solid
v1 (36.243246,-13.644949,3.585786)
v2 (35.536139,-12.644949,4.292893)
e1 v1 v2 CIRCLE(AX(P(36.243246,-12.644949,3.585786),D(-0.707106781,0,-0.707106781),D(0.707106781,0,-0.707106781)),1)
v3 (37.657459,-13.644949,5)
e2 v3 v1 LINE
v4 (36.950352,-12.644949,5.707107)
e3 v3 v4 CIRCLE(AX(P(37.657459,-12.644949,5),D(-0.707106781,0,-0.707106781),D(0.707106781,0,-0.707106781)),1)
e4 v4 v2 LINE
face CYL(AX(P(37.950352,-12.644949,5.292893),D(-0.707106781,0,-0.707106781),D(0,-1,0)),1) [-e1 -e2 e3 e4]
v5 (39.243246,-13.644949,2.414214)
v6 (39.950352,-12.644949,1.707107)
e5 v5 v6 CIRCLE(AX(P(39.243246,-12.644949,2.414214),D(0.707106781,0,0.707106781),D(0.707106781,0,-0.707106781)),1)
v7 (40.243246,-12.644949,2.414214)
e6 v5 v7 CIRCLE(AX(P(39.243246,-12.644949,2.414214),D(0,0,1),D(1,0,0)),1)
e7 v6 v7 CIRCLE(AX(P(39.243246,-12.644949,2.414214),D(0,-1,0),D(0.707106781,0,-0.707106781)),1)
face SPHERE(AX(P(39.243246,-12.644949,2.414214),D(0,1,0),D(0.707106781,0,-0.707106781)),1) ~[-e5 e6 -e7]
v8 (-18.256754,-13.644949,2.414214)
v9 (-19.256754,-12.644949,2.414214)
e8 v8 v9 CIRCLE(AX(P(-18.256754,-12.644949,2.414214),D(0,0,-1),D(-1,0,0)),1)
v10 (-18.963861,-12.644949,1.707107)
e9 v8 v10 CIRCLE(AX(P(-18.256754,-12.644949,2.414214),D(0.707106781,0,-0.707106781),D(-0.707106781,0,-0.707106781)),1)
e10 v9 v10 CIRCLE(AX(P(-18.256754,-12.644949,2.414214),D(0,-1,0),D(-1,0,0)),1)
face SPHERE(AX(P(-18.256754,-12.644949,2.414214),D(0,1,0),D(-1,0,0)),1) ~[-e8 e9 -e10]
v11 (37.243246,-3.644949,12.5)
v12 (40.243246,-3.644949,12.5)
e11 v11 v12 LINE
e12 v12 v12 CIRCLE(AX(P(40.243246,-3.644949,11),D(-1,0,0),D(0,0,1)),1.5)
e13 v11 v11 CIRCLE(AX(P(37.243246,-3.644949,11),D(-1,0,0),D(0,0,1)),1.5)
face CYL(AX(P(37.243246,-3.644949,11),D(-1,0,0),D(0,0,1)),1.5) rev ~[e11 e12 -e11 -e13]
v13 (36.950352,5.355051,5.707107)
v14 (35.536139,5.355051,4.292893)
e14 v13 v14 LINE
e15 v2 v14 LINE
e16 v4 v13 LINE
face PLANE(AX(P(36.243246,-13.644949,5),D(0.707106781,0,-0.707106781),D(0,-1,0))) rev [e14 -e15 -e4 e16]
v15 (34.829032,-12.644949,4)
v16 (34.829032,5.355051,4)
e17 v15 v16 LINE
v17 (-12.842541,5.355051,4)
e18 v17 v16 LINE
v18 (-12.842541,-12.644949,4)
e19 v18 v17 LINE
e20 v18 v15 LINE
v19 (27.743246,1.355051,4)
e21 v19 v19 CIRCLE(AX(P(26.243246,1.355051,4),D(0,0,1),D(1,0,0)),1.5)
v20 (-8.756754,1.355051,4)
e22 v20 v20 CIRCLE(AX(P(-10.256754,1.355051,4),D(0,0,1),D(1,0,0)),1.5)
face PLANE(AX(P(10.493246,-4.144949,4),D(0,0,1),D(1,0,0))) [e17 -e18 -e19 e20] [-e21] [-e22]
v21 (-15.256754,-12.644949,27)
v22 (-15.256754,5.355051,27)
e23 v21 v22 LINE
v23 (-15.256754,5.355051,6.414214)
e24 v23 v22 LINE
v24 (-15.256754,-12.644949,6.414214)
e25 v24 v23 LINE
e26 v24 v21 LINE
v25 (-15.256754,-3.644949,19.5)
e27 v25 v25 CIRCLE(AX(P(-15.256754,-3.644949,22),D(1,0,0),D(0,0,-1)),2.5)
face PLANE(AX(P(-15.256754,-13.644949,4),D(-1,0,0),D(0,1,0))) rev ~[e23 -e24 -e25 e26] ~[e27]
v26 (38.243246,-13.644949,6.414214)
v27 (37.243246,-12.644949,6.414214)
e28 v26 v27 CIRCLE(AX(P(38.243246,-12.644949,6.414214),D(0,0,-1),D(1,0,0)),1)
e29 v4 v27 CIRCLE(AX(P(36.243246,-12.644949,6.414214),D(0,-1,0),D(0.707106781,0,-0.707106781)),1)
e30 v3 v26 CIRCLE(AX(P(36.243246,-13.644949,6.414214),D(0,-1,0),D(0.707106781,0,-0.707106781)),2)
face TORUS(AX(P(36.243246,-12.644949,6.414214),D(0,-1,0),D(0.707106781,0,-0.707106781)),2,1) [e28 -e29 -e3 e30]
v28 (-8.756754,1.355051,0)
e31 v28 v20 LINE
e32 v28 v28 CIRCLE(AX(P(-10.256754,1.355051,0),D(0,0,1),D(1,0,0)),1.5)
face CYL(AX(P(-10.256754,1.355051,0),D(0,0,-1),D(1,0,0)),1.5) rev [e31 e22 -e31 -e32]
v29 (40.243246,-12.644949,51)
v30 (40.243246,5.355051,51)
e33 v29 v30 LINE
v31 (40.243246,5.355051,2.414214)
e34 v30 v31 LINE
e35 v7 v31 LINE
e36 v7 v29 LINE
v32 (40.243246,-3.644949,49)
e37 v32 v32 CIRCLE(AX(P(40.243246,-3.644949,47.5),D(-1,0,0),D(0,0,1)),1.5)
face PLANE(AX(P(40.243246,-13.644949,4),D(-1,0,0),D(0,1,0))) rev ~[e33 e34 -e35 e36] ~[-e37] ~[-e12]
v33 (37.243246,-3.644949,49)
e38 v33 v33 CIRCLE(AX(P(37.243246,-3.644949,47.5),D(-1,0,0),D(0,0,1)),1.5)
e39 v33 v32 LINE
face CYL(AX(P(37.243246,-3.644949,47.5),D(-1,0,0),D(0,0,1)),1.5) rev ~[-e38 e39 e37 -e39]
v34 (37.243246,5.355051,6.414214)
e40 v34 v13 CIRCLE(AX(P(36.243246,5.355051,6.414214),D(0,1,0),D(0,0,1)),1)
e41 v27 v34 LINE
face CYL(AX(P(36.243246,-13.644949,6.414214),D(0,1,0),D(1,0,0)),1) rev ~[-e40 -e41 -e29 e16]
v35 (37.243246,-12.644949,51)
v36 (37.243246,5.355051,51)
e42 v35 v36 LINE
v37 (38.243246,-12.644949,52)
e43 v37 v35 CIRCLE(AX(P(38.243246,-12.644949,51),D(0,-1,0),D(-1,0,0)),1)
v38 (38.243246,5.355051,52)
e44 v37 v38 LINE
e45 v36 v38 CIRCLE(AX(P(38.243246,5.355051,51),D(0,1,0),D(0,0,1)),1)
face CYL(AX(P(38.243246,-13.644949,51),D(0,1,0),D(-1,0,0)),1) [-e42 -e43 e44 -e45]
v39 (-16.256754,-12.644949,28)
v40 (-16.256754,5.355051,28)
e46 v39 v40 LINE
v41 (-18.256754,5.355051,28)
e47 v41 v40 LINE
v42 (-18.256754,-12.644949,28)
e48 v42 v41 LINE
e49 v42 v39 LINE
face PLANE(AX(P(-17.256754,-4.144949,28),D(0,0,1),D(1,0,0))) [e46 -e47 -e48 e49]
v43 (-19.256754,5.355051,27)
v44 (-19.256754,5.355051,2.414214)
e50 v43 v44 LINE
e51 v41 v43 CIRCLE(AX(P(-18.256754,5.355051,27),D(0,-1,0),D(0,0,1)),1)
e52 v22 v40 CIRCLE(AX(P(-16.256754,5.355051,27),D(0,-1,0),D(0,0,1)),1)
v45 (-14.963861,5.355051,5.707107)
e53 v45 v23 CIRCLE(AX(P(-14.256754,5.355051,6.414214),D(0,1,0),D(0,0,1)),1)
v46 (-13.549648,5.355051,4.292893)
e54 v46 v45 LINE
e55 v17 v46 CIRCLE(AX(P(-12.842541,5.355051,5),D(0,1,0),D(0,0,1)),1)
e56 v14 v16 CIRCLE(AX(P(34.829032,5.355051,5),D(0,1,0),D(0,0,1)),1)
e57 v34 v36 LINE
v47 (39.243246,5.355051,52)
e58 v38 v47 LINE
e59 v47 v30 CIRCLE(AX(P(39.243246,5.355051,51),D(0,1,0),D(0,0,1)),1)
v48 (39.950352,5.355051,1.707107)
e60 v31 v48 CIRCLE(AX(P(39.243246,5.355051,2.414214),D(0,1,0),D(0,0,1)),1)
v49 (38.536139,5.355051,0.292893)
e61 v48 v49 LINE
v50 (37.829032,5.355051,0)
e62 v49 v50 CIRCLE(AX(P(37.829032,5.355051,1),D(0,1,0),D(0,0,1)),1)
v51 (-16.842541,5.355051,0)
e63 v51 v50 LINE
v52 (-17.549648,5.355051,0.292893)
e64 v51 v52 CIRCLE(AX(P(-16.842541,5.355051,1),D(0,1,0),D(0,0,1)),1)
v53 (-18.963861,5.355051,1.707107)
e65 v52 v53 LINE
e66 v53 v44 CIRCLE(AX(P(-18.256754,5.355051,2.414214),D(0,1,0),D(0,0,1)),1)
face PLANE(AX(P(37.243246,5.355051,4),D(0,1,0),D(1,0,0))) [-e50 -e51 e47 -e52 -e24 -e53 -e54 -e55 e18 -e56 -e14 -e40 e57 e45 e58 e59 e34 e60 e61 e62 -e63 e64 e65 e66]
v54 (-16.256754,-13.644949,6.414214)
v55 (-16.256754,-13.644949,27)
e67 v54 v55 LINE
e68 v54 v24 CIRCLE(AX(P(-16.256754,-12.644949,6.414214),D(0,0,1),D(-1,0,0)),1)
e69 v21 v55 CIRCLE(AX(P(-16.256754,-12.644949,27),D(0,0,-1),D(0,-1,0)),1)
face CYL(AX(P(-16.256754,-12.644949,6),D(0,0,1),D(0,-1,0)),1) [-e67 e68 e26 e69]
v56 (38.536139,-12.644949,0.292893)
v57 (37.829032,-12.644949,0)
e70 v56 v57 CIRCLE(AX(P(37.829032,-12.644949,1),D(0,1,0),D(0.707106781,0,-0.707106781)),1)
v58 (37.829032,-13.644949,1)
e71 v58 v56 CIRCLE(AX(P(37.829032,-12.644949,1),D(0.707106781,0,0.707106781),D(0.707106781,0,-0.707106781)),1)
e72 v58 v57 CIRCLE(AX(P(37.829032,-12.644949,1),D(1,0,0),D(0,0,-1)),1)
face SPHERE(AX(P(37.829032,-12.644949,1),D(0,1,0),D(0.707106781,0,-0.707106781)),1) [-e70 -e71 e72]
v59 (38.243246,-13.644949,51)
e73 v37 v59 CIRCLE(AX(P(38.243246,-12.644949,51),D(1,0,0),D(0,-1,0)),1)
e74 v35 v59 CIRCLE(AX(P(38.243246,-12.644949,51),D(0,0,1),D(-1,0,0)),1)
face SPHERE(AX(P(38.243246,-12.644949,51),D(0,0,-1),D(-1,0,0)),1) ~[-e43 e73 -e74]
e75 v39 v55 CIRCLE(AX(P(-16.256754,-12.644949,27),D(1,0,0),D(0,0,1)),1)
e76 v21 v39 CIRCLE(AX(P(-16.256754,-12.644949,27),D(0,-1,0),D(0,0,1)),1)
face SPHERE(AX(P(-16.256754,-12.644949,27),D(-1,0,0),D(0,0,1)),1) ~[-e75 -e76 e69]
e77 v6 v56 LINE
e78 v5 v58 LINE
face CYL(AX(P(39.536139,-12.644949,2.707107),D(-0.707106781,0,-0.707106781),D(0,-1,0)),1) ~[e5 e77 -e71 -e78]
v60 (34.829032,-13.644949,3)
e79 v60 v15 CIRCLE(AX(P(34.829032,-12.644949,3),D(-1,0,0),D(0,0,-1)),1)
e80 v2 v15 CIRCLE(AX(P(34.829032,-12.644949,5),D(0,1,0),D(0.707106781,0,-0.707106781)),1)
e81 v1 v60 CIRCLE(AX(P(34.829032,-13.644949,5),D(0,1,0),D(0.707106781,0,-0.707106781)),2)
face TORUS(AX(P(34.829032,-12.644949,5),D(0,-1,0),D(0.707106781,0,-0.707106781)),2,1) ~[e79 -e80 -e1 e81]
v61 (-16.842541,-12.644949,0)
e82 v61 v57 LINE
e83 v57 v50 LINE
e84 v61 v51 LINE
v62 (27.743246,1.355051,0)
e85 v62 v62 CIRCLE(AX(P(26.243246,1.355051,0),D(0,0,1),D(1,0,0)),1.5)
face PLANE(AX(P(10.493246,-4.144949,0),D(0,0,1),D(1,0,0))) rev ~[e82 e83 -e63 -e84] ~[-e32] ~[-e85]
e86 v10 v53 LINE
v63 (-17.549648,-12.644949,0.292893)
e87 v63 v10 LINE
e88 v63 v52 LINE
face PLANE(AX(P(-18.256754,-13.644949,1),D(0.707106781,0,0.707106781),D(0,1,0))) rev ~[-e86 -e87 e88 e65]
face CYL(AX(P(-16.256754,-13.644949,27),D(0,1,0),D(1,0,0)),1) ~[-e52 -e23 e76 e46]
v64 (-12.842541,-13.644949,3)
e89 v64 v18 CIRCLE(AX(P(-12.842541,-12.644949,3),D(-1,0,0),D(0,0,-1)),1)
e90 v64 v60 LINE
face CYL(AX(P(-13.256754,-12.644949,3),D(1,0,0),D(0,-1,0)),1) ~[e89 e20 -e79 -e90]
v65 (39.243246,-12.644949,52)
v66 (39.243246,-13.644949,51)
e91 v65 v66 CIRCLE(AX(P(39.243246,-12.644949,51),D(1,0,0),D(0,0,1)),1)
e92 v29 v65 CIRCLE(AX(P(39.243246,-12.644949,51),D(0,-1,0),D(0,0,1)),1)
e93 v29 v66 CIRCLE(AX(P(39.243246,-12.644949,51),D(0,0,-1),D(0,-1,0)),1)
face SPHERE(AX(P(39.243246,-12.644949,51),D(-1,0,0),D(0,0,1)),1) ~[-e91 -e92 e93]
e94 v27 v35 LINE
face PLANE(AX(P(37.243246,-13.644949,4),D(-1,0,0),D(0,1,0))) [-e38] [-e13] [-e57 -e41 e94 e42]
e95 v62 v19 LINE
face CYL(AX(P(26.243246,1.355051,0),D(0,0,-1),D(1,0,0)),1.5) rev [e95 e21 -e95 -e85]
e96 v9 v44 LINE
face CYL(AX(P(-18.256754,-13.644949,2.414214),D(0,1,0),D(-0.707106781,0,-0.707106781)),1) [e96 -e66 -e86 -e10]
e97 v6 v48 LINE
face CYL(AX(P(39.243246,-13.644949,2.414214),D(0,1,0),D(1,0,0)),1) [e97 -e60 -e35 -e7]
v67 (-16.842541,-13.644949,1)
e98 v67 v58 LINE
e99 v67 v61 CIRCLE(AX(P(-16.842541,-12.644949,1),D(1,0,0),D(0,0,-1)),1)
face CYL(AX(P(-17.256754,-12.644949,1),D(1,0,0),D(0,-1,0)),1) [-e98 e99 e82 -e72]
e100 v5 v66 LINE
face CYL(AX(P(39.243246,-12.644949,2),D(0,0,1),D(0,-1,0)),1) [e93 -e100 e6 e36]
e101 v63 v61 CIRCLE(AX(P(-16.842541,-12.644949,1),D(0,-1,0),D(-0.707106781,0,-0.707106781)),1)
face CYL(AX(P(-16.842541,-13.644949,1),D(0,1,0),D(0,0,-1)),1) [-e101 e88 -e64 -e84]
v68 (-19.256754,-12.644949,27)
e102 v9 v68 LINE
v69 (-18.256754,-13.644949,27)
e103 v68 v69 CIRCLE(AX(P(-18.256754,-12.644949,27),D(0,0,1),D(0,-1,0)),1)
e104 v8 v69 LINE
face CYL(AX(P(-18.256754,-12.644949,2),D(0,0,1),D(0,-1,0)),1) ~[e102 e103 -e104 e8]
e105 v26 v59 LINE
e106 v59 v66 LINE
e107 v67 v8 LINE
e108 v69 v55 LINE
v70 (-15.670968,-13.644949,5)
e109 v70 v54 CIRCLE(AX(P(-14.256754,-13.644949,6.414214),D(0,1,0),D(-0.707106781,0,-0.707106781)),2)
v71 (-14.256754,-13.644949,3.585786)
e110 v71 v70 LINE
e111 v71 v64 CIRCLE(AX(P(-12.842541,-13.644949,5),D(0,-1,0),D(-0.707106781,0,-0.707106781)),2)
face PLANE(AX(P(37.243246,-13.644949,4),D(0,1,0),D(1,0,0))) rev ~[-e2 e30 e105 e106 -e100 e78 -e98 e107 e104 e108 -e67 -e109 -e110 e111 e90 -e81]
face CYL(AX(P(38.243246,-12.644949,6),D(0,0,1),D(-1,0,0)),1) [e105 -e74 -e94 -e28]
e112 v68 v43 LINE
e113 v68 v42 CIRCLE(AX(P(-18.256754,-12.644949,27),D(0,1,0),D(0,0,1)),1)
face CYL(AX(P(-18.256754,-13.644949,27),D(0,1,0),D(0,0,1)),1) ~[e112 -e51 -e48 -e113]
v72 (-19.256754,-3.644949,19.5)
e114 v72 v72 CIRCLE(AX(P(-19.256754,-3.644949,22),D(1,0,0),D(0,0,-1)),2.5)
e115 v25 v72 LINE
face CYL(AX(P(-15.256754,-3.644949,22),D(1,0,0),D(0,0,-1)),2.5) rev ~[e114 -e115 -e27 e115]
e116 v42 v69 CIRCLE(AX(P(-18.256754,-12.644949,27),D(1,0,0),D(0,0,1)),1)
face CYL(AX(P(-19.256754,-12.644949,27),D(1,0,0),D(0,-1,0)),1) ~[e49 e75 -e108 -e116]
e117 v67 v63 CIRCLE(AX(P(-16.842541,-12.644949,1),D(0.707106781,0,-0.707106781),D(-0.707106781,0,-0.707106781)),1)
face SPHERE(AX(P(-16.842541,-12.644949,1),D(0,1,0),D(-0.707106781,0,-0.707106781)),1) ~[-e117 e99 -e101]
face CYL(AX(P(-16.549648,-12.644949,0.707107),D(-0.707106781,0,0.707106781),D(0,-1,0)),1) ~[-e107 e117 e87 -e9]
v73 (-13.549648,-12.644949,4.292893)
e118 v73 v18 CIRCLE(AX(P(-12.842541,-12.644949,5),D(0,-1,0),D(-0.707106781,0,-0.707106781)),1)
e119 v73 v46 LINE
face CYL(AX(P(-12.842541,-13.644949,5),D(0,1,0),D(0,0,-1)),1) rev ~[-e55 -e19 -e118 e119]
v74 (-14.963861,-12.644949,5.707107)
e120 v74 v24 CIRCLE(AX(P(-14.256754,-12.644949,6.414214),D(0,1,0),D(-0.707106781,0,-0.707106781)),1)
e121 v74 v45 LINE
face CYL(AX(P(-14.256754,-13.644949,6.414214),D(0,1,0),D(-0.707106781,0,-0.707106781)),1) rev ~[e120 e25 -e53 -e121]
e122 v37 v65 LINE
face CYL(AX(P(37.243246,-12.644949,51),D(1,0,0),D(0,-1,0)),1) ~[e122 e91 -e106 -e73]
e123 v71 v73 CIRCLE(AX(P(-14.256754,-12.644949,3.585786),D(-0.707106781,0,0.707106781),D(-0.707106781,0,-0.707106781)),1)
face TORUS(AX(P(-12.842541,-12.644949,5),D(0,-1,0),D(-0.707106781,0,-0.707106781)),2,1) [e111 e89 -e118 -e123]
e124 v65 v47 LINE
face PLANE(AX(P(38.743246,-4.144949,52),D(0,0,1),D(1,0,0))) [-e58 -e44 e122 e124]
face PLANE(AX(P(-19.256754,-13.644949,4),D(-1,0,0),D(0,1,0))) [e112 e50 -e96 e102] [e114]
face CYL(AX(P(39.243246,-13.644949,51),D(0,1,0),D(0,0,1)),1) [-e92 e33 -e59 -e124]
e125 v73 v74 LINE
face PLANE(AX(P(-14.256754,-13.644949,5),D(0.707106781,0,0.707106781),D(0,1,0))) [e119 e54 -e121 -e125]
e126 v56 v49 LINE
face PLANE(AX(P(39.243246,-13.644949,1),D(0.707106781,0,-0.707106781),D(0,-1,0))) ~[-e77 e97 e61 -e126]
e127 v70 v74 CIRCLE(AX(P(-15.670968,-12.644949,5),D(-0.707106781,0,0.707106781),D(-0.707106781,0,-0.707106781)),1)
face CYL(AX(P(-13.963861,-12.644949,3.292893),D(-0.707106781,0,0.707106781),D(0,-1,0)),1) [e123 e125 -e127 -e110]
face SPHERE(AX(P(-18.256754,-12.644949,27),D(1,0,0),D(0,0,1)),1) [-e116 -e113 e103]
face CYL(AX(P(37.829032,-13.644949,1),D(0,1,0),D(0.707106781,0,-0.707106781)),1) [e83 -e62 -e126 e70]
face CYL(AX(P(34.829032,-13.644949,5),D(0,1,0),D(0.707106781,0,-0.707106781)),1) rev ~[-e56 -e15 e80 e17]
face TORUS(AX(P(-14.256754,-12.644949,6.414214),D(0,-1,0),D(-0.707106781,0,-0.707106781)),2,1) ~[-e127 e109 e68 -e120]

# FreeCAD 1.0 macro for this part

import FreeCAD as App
import Part
import Sketcher

V = App.Vector
Q = App.Units.Quantity


def edges_at(feature, points):
    """Names of the edges that pass closest to the given points."""
    edges = feature.Shape.Edges
    near = lambda p: min(range(len(edges)), key=lambda i: edges[i].distToShape(Part.Vertex(*p))[0])
    return sorted({f"Edge{near(p) + 1}" for p in points})


def add_polygon(sketch, points):
    """Adds a closed chain of lines whose ends are joined by coincident constraints."""
    first, n = sketch.GeometryCount, len(points)
    for a, b in zip(points, points[1:] + points[:1]):
        sketch.addGeometry(Part.LineSegment(App.Vector(*a, 0), App.Vector(*b, 0)), False)
    for i in range(n):
        sketch.addConstraint(Sketcher.Constraint("Coincident", first + i, 2, first + (i + 1) % n, 1))

doc = App.newDocument("Part")
body = doc.addObject("PartDesign::Body", "Body")

# Sketch on XY plane
sketch1 = body.newObject("Sketcher::SketchObject", "Sketch")
sketch1.AttachmentSupport = (doc.getObject("XY_Plane"), [""])
sketch1.MapMode = "FlatFace"
add_polygon(sketch1, [(-19.3, 5.4), (-19.3, -13.6), (40.2, -13.6), (40.2, 5.4)])  # lines 0-3
sketch1.addGeometry(Part.Circle(V(-10.3, 1.4, 0), V(0, 0, 1), 1.5), False)  # 4
sketch1.addGeometry(Part.Circle(V(26.2, 1.4, 0), V(0, 0, 1), 1.5), False)  # 5
sketch1.addConstraint(Sketcher.Constraint("Vertical", 0))
sketch1.addConstraint(Sketcher.Constraint("Horizontal", 1))
sketch1.addConstraint(Sketcher.Constraint("Vertical", 2))
sketch1.addConstraint(Sketcher.Constraint("Horizontal", 3))
sketch1.addConstraint(Sketcher.Constraint("Equal", 4, 5))
sketch1.addConstraint(Sketcher.Constraint("Horizontal", 4, 3, 5, 3))
sketch1.addConstraint(Sketcher.Constraint("Diameter", 4, Q("3 mm")))
sketch1.addConstraint(Sketcher.Constraint("DistanceY", 0, 2, 0, 1, Q("19 mm")))
sketch1.addConstraint(Sketcher.Constraint("DistanceX", 1, 1, 1, 2, Q("59.5 mm")))
sketch1.addConstraint(Sketcher.Constraint("DistanceX", 0, 2, 4, 3, Q("9 mm")))
sketch1.addConstraint(Sketcher.Constraint("DistanceY", 0, 2, 4, 3, Q("15 mm")))
sketch1.addConstraint(Sketcher.Constraint("DistanceX", 5, 3, 1, 2, Q("14 mm")))
sketch1.addConstraint(Sketcher.Constraint("DistanceY", -1, 1, 4, 3, Q("1.355051 mm")))
sketch1.addConstraint(Sketcher.Constraint("DistanceX", 4, 3, -1, 1, Q("10.256754 mm")))
pad1 = body.newObject("PartDesign::Pad", "Pad")
pad1.Profile = sketch1
pad1.Length = 4

# Sketch on XY plane
sketch2 = body.newObject("Sketcher::SketchObject", "Sketch001")
sketch2.AttachmentSupport = (doc.getObject("XY_Plane"), [""])
sketch2.MapMode = "FlatFace"
sketch2.AttachmentOffset = App.Placement(V(0, 0, 4), App.Rotation())
add_polygon(sketch2, [(-19.3, 5.4), (-19.3, -13.6), (-15.3, -13.6), (-15.3, 5.4)])  # lines 0-3
sketch2.addConstraint(Sketcher.Constraint("Vertical", 0))
sketch2.addConstraint(Sketcher.Constraint("Horizontal", 1))
sketch2.addConstraint(Sketcher.Constraint("Vertical", 2))
sketch2.addConstraint(Sketcher.Constraint("Horizontal", 3))
sketch2.addConstraint(Sketcher.Constraint("DistanceX", 1, 1, 1, 2, Q("4 mm")))
sketch2.addConstraint(Sketcher.Constraint("DistanceY", 0, 2, 0, 1, Q("19 mm")))
sketch2.addConstraint(Sketcher.Constraint("DistanceY", 0, 2, -1, 1, Q("13.644949 mm")))
sketch2.addConstraint(Sketcher.Constraint("DistanceX", 0, 2, -1, 1, Q("19.256754 mm")))
pad2 = body.newObject("PartDesign::Pad", "Pad001")
pad2.Profile = sketch2
pad2.Length = 24

# Sketch on XY plane
sketch3 = body.newObject("Sketcher::SketchObject", "Sketch002")
sketch3.AttachmentSupport = (doc.getObject("XY_Plane"), [""])
sketch3.MapMode = "FlatFace"
sketch3.AttachmentOffset = App.Placement(V(0, 0, 4), App.Rotation())
add_polygon(sketch3, [(37.2, 5.4), (37.2, -13.6), (40.2, -13.6), (40.2, 5.4)])  # lines 0-3
sketch3.addConstraint(Sketcher.Constraint("Vertical", 0))
sketch3.addConstraint(Sketcher.Constraint("Horizontal", 1))
sketch3.addConstraint(Sketcher.Constraint("Vertical", 2))
sketch3.addConstraint(Sketcher.Constraint("Horizontal", 3))
sketch3.addConstraint(Sketcher.Constraint("DistanceX", 1, 1, 1, 2, Q("3 mm")))
sketch3.addConstraint(Sketcher.Constraint("DistanceY", 0, 2, 0, 1, Q("19 mm")))
sketch3.addConstraint(Sketcher.Constraint("DistanceY", 0, 2, -1, 1, Q("13.644949 mm")))
sketch3.addConstraint(Sketcher.Constraint("DistanceX", -1, 1, 0, 2, Q("37.243246 mm")))
pad3 = body.newObject("PartDesign::Pad", "Pad002")
pad3.Profile = sketch3
pad3.Length = 48

# Sketch on YZ plane
sketch4 = body.newObject("Sketcher::SketchObject", "Sketch003")
sketch4.AttachmentSupport = (doc.getObject("YZ_Plane"), [""])
sketch4.MapMode = "FlatFace"
sketch4.AttachmentOffset = App.Placement(V(0, 0, -15.256754), App.Rotation())
sketch4.addGeometry(Part.Circle(V(-3.6, 22, 0), V(0, 0, 1), 2.5), False)
sketch4.addConstraint(Sketcher.Constraint("Diameter", 0, Q("5 mm")))
sketch4.addConstraint(Sketcher.Constraint("DistanceY", -1, 1, 0, 3, Q("22 mm")))
sketch4.addConstraint(Sketcher.Constraint("DistanceX", 0, 3, -1, 1, Q("3.644949 mm")))
pocket1 = body.newObject("PartDesign::Pocket", "Pocket")
pocket1.Profile = sketch4
pocket1.Length = 48

# Sketch on YZ plane
sketch5 = body.newObject("Sketcher::SketchObject", "Sketch004")
sketch5.AttachmentSupport = (doc.getObject("YZ_Plane"), [""])
sketch5.MapMode = "FlatFace"
sketch5.AttachmentOffset = App.Placement(V(0, 0, 37.243246), App.Rotation())
sketch5.addGeometry(Part.Circle(V(-3.6, 11, 0), V(0, 0, 1), 1.5), False)
sketch5.addGeometry(Part.Circle(V(-3.6, 47.5, 0), V(0, 0, 1), 1.5), False)
sketch5.addConstraint(Sketcher.Constraint("Equal", 0, 1))
sketch5.addConstraint(Sketcher.Constraint("Vertical", 0, 3, 1, 3))
sketch5.addConstraint(Sketcher.Constraint("Diameter", 0, Q("3 mm")))
sketch5.addConstraint(Sketcher.Constraint("DistanceY", -1, 1, 0, 3, Q("11 mm")))
sketch5.addConstraint(Sketcher.Constraint("DistanceY", -1, 1, 1, 3, Q("47.5 mm")))
sketch5.addConstraint(Sketcher.Constraint("DistanceX", 0, 3, -1, 1, Q("3.644949 mm")))
pocket2 = body.newObject("PartDesign::Pocket", "Pocket001")
pocket2.Profile = sketch5
pocket2.Length = 48
pocket2.Reversed = True
doc.recompute()

chamfer = body.newObject("PartDesign::Chamfer", "Chamfer")
chamfer.Base = (pocket2, edges_at(pocket2, [
    (-15.257, -4.145, 4),
    (37.243, -4.145, 4),
    (-19.257, -4.145, 0),
    (40.243, -4.145, 0),
]))
chamfer.Size = 2
doc.recompute()

fillet = body.newObject("PartDesign::Fillet", "Fillet")
fillet.Base = (chamfer, edges_at(chamfer, [
    (-17.257, -13.645, 28),
    (-15.257, -4.145, 28),
    (-15.257, -13.645, 17),
    (-19.257, -4.145, 28),
    (37.243, -13.645, 29),
    (37.243, -4.145, 52),
    (38.743, -13.645, 52),
    (40.243, -4.145, 52),
    (40.243, -4.145, 2),
    (10.493, -13.645, 0),
    (-17.257, -4.145, 0),
    (38.243, -4.145, 0),
    (10.993, -13.645, 4),
    (-18.257, -13.645, 1),
    (39.243, -13.645, 1),
    (-19.257, -4.145, 2),
    (37.243, -4.145, 6),
    (-13.257, -4.145, 4),
    (35.243, -4.145, 4),
    (-15.257, -4.145, 6),
    (40.243, -13.645, 27),
    (36.243, -13.645, 5),
    (-19.257, -13.645, 15),
    (-14.257, -13.645, 5),
]))
fillet.Radius = 1

doc.recompute()
